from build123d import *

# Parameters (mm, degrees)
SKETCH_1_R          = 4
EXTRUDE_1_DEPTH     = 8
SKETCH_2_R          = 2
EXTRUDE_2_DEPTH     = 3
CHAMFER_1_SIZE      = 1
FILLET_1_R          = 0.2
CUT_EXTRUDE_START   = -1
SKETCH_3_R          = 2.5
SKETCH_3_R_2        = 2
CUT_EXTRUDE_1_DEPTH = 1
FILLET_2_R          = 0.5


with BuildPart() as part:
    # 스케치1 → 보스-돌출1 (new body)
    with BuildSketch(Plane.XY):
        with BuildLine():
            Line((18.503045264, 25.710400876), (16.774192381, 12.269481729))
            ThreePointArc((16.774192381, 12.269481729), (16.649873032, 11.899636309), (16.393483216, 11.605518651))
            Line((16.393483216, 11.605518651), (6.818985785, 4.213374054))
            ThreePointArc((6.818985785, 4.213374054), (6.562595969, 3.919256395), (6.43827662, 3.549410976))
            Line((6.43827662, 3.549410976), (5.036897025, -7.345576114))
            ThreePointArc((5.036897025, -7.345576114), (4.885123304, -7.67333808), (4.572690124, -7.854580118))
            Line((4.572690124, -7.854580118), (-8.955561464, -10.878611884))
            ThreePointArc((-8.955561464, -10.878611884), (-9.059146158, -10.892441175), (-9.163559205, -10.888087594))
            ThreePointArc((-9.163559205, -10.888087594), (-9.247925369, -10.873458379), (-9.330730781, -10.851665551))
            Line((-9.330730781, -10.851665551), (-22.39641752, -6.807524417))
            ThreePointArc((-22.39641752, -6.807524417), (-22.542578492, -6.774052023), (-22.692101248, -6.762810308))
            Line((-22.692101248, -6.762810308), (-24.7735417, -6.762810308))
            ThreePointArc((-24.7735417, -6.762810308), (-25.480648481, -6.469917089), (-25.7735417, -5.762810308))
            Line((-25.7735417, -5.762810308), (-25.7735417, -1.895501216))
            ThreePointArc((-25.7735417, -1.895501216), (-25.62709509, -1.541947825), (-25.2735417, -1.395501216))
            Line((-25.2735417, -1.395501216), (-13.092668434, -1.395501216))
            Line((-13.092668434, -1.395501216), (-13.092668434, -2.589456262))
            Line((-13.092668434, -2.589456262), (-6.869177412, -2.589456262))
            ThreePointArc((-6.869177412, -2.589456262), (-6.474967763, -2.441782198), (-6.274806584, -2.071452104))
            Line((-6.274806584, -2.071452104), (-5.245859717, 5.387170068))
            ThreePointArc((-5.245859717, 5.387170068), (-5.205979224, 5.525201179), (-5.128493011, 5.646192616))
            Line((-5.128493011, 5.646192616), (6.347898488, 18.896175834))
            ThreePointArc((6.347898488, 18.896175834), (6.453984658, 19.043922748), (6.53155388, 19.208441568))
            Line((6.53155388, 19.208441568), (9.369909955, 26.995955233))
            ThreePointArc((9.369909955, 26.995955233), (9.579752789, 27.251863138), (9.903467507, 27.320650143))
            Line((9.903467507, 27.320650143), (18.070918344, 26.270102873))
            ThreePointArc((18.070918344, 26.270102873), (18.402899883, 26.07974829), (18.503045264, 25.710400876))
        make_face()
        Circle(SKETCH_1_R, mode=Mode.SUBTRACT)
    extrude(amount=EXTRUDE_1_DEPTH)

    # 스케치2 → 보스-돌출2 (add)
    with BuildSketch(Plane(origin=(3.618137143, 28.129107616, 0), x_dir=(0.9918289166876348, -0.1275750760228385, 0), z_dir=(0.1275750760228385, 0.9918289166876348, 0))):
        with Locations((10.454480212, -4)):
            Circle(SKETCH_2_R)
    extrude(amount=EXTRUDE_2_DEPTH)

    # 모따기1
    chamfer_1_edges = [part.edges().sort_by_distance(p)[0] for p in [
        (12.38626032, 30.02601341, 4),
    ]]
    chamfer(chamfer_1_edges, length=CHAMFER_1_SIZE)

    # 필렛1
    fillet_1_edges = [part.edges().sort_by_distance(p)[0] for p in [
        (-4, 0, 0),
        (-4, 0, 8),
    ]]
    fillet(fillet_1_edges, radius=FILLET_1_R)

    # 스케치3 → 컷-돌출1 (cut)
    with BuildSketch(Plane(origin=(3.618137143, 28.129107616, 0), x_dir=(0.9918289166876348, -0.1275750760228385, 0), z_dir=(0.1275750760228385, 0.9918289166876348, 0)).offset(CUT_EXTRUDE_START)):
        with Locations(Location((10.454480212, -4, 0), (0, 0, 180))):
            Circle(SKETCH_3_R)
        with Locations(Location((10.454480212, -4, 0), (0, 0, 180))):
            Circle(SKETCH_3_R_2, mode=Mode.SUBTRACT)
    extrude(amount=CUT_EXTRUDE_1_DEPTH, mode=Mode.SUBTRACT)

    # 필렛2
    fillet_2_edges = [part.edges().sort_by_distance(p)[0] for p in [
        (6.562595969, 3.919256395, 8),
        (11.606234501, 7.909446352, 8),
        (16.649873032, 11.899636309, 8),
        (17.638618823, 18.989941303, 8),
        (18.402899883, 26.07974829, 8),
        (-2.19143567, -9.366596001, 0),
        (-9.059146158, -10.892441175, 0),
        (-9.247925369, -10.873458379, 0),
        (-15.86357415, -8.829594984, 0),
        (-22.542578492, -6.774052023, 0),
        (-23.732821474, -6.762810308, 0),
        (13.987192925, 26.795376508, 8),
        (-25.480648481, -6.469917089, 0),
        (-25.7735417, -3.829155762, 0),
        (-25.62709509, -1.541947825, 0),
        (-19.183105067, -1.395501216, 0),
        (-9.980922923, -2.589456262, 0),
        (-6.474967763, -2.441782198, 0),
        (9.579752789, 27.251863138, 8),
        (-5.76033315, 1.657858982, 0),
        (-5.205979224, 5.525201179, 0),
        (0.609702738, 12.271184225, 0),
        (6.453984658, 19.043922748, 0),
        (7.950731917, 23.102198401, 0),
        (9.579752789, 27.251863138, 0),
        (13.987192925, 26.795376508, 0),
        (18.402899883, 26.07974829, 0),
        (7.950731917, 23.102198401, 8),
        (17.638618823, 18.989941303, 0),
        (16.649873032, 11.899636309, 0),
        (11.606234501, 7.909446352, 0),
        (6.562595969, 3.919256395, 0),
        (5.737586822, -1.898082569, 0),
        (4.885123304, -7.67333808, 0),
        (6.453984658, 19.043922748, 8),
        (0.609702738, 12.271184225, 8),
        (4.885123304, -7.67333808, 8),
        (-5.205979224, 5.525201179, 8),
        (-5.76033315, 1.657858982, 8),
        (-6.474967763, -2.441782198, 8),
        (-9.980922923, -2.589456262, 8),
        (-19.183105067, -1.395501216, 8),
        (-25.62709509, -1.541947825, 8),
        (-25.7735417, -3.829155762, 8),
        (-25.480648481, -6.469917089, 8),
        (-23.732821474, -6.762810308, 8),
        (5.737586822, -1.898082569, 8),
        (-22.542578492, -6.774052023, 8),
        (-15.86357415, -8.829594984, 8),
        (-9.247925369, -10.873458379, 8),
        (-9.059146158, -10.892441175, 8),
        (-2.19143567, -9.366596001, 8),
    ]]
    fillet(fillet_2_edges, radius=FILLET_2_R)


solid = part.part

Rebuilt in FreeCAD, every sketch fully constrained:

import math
import FreeCAD as App
import Part
import Sketcher
from FreeCAD import Vector


def edges_at(feature, points):
    """Names of the edges that pass closest to the given points."""
    edges = feature.Shape.Edges
    near = lambda p: min(range(len(edges)), key=lambda i: edges[i].distToShape(Part.Vertex(*p))[0])
    return sorted({f"Edge{near(p) + 1}" for p in points})

doc = App.newDocument("Part")
body = doc.addObject("PartDesign::Body", "Body")

sketch1 = body.newObject("Sketcher::SketchObject", "Sketch")
sketch1.AttachmentSupport = (doc.getObject("XY_Plane"), [""])
sketch1.MapMode = "FlatFace"
sketch1.addGeometry([
    Part.LineSegment(Vector(16.774192, 12.269482, 0), Vector(18.503045, 25.710401, 0)),
    Part.ArcOfCircle(Part.Circle(Vector(18.007131, 25.774188, 0), Vector(0, 0, 1), 0.5), math.radians(-7.329488), math.radians(82.670512)),
    Part.LineSegment(Vector(18.070918, 26.270103, 0), Vector(9.903468, 27.32065, 0)),
    Part.ArcOfCircle(Part.Circle(Vector(9.83968, 26.824736, 0), Vector(0, 0, 1), 0.5), math.radians(82.670512), math.radians(159.974453)),
    Part.LineSegment(Vector(9.36991, 26.995955, 0), Vector(6.531554, 19.208442, 0)),
    Part.ArcOfCircle(Part.Circle(Vector(5.592014, 19.550881, 0), Vector(0, 0, 1), 1), math.radians(-40.897273), math.radians(-20.025547)),
    Part.LineSegment(Vector(6.347898, 18.896176, 0), Vector(-5.128493, 5.646193, 0)),
    Part.ArcOfCircle(Part.Circle(Vector(-4.750551, 5.31884, 0), Vector(0, 0, 1), 0.5), math.radians(139.102727), math.radians(172.145395)),
    Part.LineSegment(Vector(-5.24586, 5.38717, 0), Vector(-6.274807, -2.071452, 0)),
    Part.ArcOfCircle(Part.Circle(Vector(-6.869177, -1.989456, 0), Vector(0, 0, 1), 0.6), math.radians(-90), math.radians(-7.854605)),
    Part.LineSegment(Vector(-6.869177, -2.589456, 0), Vector(-13.092668, -2.589456, 0)),
    Part.LineSegment(Vector(-13.092668, -2.589456, 0), Vector(-13.092668, -1.395501, 0)),
    Part.LineSegment(Vector(-13.092668, -1.395501, 0), Vector(-25.273542, -1.395501, 0)),
    Part.ArcOfCircle(Part.Circle(Vector(-25.273542, -1.895501, 0), Vector(0, 0, 1), 0.5), math.radians(90), math.radians(180)),
    Part.LineSegment(Vector(-25.773542, -1.895501, 0), Vector(-25.773542, -5.76281, 0)),
    Part.ArcOfCircle(Part.Circle(Vector(-24.773542, -5.76281, 0), Vector(0, 0, 1), 1), math.radians(-180), math.radians(-90)),
    Part.LineSegment(Vector(-24.773542, -6.76281, 0), Vector(-22.692101, -6.76281, 0)),
    Part.ArcOfCircle(Part.Circle(Vector(-22.692101, -7.76281, 0), Vector(0, 0, 1), 1), math.radians(72.801459), math.radians(90)),
    Part.LineSegment(Vector(-22.396418, -6.807524, 0), Vector(-9.330731, -10.851666, 0)),
    Part.ArcOfCircle(Part.Circle(Vector(-9.035047, -9.89638, 0), Vector(0, 0, 1), 1), math.radians(-107.198541), math.radians(-97.383623)),
    Part.ArcOfCircle(Part.Circle(Vector(-9.086452, -10.293063, 0), Vector(0, 0, 1), 0.6), math.radians(-97.383624), math.radians(-77.399559)),
    Part.LineSegment(Vector(-8.955561, -10.878612, 0), Vector(4.57269, -7.85458, 0)),
    Part.ArcOfCircle(Part.Circle(Vector(4.4418, -7.269031, 0), Vector(0, 0, 1), 0.6), math.radians(-77.399559), math.radians(-7.329488)),
    Part.LineSegment(Vector(5.036897, -7.345576, 0), Vector(6.438277, 3.549411, 0)),
    Part.ArcOfCircle(Part.Circle(Vector(7.430106, 3.421836, 0), Vector(0, 0, 1), 1), math.radians(127.670513), math.radians(172.670512)),
    Part.LineSegment(Vector(6.818986, 4.213374, 0), Vector(16.393483, 11.605519, 0)),
    Part.ArcOfCircle(Part.Circle(Vector(15.782363, 12.397057, 0), Vector(0, 0, 1), 1), math.radians(-52.329488), math.radians(-7.329488)),
    Part.Circle(Vector(0, 0, 0), Vector(0, 0, 1), 4),
], False)
sketch1.addConstraint([
    Sketcher.Constraint("Tangent", 0, 2, 1, 1),
    Sketcher.Constraint("Tangent", 1, 2, 2, 1),
    Sketcher.Constraint("Tangent", 2, 2, 3, 1),
    Sketcher.Constraint("Tangent", 3, 2, 4, 1),
    Sketcher.Constraint("Tangent", 4, 2, 5, 2),
    Sketcher.Constraint("Tangent", 5, 1, 6, 1),
    Sketcher.Constraint("Tangent", 6, 2, 7, 1),
    Sketcher.Constraint("Tangent", 7, 2, 8, 1),
    Sketcher.Constraint("Tangent", 8, 2, 9, 2),
    Sketcher.Constraint("Tangent", 9, 1, 10, 1),
    Sketcher.Constraint("Coincident", 10, 2, 11, 1),
    Sketcher.Constraint("Coincident", 11, 2, 12, 1),
    Sketcher.Constraint("Tangent", 12, 2, 13, 1),
    Sketcher.Constraint("Tangent", 13, 2, 14, 1),
    Sketcher.Constraint("Tangent", 14, 2, 15, 1),
    Sketcher.Constraint("Tangent", 15, 2, 16, 1),
    Sketcher.Constraint("Tangent", 16, 2, 17, 2),
    Sketcher.Constraint("Tangent", 17, 1, 18, 1),
    Sketcher.Constraint("Tangent", 18, 2, 19, 1),
    Sketcher.Constraint("Tangent", 19, 2, 20, 1),
    Sketcher.Constraint("Tangent", 20, 2, 21, 1),
    Sketcher.Constraint("Tangent", 21, 2, 22, 1),
    Sketcher.Constraint("Tangent", 22, 2, 23, 1),
    Sketcher.Constraint("Tangent", 23, 2, 24, 2),
    Sketcher.Constraint("Tangent", 24, 1, 25, 1),
    Sketcher.Constraint("Tangent", 25, 2, 26, 1),
    Sketcher.Constraint("Tangent", 26, 2, 0, 1),
    Sketcher.Constraint("Horizontal", 10),
    Sketcher.Constraint("Vertical", 11),
    Sketcher.Constraint("Horizontal", 12),
    Sketcher.Constraint("Vertical", 14),
    Sketcher.Constraint("Horizontal", 16),
    Sketcher.Constraint("Coincident", 27, 3, -1, 1),
    Sketcher.Constraint("Equal", 1, 3),
    Sketcher.Constraint("Equal", 3, 7),
    Sketcher.Constraint("Equal", 7, 13),
    Sketcher.Constraint("Equal", 5, 15),
    Sketcher.Constraint("Equal", 15, 17),
    Sketcher.Constraint("Equal", 17, 19),
    Sketcher.Constraint("Equal", 9, 20),
    Sketcher.Constraint("Equal", 20, 22),
    Sketcher.Constraint("Equal", 19, 24),
    Sketcher.Constraint("Equal", 24, 26),
    Sketcher.Constraint("Perpendicular", 0, 2),
    Sketcher.Constraint("Perpendicular", 2, 23),
    Sketcher.Constraint("Diameter", 27, 8.0),
    Sketcher.Constraint("Radius", 5, 1.0),
    Sketcher.Constraint("Radius", 1, 0.5),
    Sketcher.Constraint("Radius", 9, 0.6),
    Sketcher.Constraint("DistanceX", 10, 2, 10, 1, 6.223491),
    Sketcher.Constraint("DistanceX", 16, 1, 16, 2, 2.08144),
    Sketcher.Constraint("DistanceY", 14, 2, 14, 1, 3.867309),
    Sketcher.Constraint("DistanceY", 13, 3, -1, 1, 1.895501),
    Sketcher.Constraint("DistanceX", 17, 3, -1, 1, 22.692101),
    Sketcher.Constraint("DistanceX", -1, 1, 22, 3, 4.4418),
    Sketcher.Constraint("DistanceY", -1, 1, 0, 2, 25.710401),
    Sketcher.Constraint("DistanceX", -1, 1, 5, 1, 6.347898),
    Sketcher.Constraint("DistanceX", 20, 3, 7, 3, 4.335901),
    Sketcher.Constraint("DistanceY", 0, 2, 1, 2, 0.559702),
    Sketcher.Constraint("DistanceX", 6, 2, 24, 3, 12.558599),
    Sketcher.Constraint("Distance", 0, 13.551651),
    Sketcher.Constraint("Distance", 8, 7.529261),
    Sketcher.Constraint("Distance", 21, 13.86212),
    Sketcher.Constraint("DistanceX", 12, 2, 12, 1, 12.180873),
    Sketcher.Constraint("DistanceY", 11, 1, 11, 2, 1.193955),
    Sketcher.Constraint("DistanceX", -1, 1, 1, 3, 18.007131),
    Sketcher.Constraint("DistanceX", -1, 1, 3, 3, 9.83968),
    Sketcher.Constraint("DistanceY", -1, 1, 5, 3, 19.550881),
    Sketcher.Constraint("DistanceX", 7, 3, -1, 1, 4.750551),
    Sketcher.Constraint("DistanceY", 19, 3, -1, 1, 9.89638),
    Sketcher.Constraint("DistanceY", 22, 3, -1, 1, 7.269031),
])
pad1 = body.newObject("PartDesign::Pad", "Pad")
pad1.Profile = sketch1
pad1.Length = 8

sketch2 = body.newObject("Sketcher::SketchObject", "Sketch001")
sketch2.Placement = App.Placement(Vector(3.618137, 28.129108, 0), App.Rotation(Vector(0.991828917, -0.127575076, 0), Vector(0, 0, -1.000000001), Vector(0.127575076, 0.991828917, 0), "ZXY"))
sketch2.addGeometry(Part.Circle(Vector(10.45448, -4, 0), Vector(0, 0, 1), 2), False)
sketch2.addConstraint([
    Sketcher.Constraint("Diameter", 0, 4.0),
    Sketcher.Constraint("DistanceY", 0, 3, -1, 1, 4.0),
    Sketcher.Constraint("DistanceX", -1, 1, 0, 3, 10.45448),
])
pad2 = body.newObject("PartDesign::Pad", "Pad001")
pad2.Profile = sketch2
pad2.Length = 3
doc.recompute()

chamfer = body.newObject("PartDesign::Chamfer", "Chamfer")
chamfer.Base = (pad2, edges_at(pad2, [(12.386, 30.026, 4)]))
chamfer.Size = 1
doc.recompute()

fillet = body.newObject("PartDesign::Fillet", "Fillet")
fillet.Base = (chamfer, edges_at(chamfer, [(-4, 0, 0), (-4, 0, 8)]))
fillet.Radius = 0.2

sketch3 = body.newObject("Sketcher::SketchObject", "Sketch002")
sketch3.Placement = App.Placement(Vector(3.490562, 27.137279, 0), App.Rotation(Vector(0.991828917, -0.127575076, 0), Vector(0, 0, -1.000000001), Vector(0.127575076, 0.991828917, 0), "ZXY"))
sketch3.addGeometry([
    Part.Circle(Vector(10.45448, -4, 0), Vector(0, 0, 1), 2.5),
    Part.Circle(Vector(10.45448, -4, 0), Vector(0, 0, 1), 2),
], False)
sketch3.addConstraint([
    Sketcher.Constraint("Coincident", 1, 3, 0, 3),
    Sketcher.Constraint("Diameter", 0, 5.0),
    Sketcher.Constraint("Diameter", 1, 4.0),
    Sketcher.Constraint("DistanceY", 0, 3, -1, 1, 4.0),
    Sketcher.Constraint("DistanceX", -1, 1, 0, 3, 10.45448),
])
pocket1 = body.newObject("PartDesign::Pocket", "Pocket")
pocket1.Profile = sketch3
pocket1.Length = 1
pocket1.Reversed = True
doc.recompute()

fillet2 = body.newObject("PartDesign::Fillet", "Fillet001")
fillet2.Base = (pocket1, edges_at(pocket1, [
    (6.563, 3.919, 8),
    (11.606, 7.909, 8),
    (16.65, 11.9, 8),
    (17.639, 18.99, 8),
    (18.403, 26.08, 8),
    (-2.191, -9.367, 0),
    (-9.059, -10.892, 0),
    (-9.248, -10.873, 0),
    (-15.864, -8.83, 0),
    (-22.543, -6.774, 0),
    (-23.733, -6.763, 0),
    (13.987, 26.795, 8),
    (-25.481, -6.47, 0),
    (-25.774, -3.829, 0),
    (-25.627, -1.542, 0),
    (-19.183, -1.396, 0),
    (-9.981, -2.589, 0),
    (-6.475, -2.442, 0),
    (9.58, 27.252, 8),
    (-5.76, 1.658, 0),
    (-5.206, 5.525, 0),
    (0.61, 12.271, 0),
    (6.454, 19.044, 0),
    (7.951, 23.102, 0),
    (9.58, 27.252, 0),
    (13.987, 26.795, 0),
    (18.403, 26.08, 0),
    (7.951, 23.102, 8),
    (17.639, 18.99, 0),
    (16.65, 11.9, 0),
    (11.606, 7.909, 0),
    (6.563, 3.919, 0),
    (5.738, -1.898, 0),
    (4.885, -7.673, 0),
    (6.454, 19.044, 8),
    (0.61, 12.271, 8),
    (4.885, -7.673, 8),
    (-5.206, 5.525, 8),
    (-5.76, 1.658, 8),
    (-6.475, -2.442, 8),
    (-9.981, -2.589, 8),
    (-19.183, -1.396, 8),
    (-25.627, -1.542, 8),
    (-25.774, -3.829, 8),
    (-25.481, -6.47, 8),
    (-23.733, -6.763, 8),
    (5.738, -1.898, 8),
    (-22.543, -6.774, 8),
    (-15.864, -8.83, 8),
    (-9.248, -10.873, 8),
    (-9.059, -10.892, 8),
    (-2.191, -9.367, 8),
]))
fillet2.Radius = 0.5

doc.recompute()
